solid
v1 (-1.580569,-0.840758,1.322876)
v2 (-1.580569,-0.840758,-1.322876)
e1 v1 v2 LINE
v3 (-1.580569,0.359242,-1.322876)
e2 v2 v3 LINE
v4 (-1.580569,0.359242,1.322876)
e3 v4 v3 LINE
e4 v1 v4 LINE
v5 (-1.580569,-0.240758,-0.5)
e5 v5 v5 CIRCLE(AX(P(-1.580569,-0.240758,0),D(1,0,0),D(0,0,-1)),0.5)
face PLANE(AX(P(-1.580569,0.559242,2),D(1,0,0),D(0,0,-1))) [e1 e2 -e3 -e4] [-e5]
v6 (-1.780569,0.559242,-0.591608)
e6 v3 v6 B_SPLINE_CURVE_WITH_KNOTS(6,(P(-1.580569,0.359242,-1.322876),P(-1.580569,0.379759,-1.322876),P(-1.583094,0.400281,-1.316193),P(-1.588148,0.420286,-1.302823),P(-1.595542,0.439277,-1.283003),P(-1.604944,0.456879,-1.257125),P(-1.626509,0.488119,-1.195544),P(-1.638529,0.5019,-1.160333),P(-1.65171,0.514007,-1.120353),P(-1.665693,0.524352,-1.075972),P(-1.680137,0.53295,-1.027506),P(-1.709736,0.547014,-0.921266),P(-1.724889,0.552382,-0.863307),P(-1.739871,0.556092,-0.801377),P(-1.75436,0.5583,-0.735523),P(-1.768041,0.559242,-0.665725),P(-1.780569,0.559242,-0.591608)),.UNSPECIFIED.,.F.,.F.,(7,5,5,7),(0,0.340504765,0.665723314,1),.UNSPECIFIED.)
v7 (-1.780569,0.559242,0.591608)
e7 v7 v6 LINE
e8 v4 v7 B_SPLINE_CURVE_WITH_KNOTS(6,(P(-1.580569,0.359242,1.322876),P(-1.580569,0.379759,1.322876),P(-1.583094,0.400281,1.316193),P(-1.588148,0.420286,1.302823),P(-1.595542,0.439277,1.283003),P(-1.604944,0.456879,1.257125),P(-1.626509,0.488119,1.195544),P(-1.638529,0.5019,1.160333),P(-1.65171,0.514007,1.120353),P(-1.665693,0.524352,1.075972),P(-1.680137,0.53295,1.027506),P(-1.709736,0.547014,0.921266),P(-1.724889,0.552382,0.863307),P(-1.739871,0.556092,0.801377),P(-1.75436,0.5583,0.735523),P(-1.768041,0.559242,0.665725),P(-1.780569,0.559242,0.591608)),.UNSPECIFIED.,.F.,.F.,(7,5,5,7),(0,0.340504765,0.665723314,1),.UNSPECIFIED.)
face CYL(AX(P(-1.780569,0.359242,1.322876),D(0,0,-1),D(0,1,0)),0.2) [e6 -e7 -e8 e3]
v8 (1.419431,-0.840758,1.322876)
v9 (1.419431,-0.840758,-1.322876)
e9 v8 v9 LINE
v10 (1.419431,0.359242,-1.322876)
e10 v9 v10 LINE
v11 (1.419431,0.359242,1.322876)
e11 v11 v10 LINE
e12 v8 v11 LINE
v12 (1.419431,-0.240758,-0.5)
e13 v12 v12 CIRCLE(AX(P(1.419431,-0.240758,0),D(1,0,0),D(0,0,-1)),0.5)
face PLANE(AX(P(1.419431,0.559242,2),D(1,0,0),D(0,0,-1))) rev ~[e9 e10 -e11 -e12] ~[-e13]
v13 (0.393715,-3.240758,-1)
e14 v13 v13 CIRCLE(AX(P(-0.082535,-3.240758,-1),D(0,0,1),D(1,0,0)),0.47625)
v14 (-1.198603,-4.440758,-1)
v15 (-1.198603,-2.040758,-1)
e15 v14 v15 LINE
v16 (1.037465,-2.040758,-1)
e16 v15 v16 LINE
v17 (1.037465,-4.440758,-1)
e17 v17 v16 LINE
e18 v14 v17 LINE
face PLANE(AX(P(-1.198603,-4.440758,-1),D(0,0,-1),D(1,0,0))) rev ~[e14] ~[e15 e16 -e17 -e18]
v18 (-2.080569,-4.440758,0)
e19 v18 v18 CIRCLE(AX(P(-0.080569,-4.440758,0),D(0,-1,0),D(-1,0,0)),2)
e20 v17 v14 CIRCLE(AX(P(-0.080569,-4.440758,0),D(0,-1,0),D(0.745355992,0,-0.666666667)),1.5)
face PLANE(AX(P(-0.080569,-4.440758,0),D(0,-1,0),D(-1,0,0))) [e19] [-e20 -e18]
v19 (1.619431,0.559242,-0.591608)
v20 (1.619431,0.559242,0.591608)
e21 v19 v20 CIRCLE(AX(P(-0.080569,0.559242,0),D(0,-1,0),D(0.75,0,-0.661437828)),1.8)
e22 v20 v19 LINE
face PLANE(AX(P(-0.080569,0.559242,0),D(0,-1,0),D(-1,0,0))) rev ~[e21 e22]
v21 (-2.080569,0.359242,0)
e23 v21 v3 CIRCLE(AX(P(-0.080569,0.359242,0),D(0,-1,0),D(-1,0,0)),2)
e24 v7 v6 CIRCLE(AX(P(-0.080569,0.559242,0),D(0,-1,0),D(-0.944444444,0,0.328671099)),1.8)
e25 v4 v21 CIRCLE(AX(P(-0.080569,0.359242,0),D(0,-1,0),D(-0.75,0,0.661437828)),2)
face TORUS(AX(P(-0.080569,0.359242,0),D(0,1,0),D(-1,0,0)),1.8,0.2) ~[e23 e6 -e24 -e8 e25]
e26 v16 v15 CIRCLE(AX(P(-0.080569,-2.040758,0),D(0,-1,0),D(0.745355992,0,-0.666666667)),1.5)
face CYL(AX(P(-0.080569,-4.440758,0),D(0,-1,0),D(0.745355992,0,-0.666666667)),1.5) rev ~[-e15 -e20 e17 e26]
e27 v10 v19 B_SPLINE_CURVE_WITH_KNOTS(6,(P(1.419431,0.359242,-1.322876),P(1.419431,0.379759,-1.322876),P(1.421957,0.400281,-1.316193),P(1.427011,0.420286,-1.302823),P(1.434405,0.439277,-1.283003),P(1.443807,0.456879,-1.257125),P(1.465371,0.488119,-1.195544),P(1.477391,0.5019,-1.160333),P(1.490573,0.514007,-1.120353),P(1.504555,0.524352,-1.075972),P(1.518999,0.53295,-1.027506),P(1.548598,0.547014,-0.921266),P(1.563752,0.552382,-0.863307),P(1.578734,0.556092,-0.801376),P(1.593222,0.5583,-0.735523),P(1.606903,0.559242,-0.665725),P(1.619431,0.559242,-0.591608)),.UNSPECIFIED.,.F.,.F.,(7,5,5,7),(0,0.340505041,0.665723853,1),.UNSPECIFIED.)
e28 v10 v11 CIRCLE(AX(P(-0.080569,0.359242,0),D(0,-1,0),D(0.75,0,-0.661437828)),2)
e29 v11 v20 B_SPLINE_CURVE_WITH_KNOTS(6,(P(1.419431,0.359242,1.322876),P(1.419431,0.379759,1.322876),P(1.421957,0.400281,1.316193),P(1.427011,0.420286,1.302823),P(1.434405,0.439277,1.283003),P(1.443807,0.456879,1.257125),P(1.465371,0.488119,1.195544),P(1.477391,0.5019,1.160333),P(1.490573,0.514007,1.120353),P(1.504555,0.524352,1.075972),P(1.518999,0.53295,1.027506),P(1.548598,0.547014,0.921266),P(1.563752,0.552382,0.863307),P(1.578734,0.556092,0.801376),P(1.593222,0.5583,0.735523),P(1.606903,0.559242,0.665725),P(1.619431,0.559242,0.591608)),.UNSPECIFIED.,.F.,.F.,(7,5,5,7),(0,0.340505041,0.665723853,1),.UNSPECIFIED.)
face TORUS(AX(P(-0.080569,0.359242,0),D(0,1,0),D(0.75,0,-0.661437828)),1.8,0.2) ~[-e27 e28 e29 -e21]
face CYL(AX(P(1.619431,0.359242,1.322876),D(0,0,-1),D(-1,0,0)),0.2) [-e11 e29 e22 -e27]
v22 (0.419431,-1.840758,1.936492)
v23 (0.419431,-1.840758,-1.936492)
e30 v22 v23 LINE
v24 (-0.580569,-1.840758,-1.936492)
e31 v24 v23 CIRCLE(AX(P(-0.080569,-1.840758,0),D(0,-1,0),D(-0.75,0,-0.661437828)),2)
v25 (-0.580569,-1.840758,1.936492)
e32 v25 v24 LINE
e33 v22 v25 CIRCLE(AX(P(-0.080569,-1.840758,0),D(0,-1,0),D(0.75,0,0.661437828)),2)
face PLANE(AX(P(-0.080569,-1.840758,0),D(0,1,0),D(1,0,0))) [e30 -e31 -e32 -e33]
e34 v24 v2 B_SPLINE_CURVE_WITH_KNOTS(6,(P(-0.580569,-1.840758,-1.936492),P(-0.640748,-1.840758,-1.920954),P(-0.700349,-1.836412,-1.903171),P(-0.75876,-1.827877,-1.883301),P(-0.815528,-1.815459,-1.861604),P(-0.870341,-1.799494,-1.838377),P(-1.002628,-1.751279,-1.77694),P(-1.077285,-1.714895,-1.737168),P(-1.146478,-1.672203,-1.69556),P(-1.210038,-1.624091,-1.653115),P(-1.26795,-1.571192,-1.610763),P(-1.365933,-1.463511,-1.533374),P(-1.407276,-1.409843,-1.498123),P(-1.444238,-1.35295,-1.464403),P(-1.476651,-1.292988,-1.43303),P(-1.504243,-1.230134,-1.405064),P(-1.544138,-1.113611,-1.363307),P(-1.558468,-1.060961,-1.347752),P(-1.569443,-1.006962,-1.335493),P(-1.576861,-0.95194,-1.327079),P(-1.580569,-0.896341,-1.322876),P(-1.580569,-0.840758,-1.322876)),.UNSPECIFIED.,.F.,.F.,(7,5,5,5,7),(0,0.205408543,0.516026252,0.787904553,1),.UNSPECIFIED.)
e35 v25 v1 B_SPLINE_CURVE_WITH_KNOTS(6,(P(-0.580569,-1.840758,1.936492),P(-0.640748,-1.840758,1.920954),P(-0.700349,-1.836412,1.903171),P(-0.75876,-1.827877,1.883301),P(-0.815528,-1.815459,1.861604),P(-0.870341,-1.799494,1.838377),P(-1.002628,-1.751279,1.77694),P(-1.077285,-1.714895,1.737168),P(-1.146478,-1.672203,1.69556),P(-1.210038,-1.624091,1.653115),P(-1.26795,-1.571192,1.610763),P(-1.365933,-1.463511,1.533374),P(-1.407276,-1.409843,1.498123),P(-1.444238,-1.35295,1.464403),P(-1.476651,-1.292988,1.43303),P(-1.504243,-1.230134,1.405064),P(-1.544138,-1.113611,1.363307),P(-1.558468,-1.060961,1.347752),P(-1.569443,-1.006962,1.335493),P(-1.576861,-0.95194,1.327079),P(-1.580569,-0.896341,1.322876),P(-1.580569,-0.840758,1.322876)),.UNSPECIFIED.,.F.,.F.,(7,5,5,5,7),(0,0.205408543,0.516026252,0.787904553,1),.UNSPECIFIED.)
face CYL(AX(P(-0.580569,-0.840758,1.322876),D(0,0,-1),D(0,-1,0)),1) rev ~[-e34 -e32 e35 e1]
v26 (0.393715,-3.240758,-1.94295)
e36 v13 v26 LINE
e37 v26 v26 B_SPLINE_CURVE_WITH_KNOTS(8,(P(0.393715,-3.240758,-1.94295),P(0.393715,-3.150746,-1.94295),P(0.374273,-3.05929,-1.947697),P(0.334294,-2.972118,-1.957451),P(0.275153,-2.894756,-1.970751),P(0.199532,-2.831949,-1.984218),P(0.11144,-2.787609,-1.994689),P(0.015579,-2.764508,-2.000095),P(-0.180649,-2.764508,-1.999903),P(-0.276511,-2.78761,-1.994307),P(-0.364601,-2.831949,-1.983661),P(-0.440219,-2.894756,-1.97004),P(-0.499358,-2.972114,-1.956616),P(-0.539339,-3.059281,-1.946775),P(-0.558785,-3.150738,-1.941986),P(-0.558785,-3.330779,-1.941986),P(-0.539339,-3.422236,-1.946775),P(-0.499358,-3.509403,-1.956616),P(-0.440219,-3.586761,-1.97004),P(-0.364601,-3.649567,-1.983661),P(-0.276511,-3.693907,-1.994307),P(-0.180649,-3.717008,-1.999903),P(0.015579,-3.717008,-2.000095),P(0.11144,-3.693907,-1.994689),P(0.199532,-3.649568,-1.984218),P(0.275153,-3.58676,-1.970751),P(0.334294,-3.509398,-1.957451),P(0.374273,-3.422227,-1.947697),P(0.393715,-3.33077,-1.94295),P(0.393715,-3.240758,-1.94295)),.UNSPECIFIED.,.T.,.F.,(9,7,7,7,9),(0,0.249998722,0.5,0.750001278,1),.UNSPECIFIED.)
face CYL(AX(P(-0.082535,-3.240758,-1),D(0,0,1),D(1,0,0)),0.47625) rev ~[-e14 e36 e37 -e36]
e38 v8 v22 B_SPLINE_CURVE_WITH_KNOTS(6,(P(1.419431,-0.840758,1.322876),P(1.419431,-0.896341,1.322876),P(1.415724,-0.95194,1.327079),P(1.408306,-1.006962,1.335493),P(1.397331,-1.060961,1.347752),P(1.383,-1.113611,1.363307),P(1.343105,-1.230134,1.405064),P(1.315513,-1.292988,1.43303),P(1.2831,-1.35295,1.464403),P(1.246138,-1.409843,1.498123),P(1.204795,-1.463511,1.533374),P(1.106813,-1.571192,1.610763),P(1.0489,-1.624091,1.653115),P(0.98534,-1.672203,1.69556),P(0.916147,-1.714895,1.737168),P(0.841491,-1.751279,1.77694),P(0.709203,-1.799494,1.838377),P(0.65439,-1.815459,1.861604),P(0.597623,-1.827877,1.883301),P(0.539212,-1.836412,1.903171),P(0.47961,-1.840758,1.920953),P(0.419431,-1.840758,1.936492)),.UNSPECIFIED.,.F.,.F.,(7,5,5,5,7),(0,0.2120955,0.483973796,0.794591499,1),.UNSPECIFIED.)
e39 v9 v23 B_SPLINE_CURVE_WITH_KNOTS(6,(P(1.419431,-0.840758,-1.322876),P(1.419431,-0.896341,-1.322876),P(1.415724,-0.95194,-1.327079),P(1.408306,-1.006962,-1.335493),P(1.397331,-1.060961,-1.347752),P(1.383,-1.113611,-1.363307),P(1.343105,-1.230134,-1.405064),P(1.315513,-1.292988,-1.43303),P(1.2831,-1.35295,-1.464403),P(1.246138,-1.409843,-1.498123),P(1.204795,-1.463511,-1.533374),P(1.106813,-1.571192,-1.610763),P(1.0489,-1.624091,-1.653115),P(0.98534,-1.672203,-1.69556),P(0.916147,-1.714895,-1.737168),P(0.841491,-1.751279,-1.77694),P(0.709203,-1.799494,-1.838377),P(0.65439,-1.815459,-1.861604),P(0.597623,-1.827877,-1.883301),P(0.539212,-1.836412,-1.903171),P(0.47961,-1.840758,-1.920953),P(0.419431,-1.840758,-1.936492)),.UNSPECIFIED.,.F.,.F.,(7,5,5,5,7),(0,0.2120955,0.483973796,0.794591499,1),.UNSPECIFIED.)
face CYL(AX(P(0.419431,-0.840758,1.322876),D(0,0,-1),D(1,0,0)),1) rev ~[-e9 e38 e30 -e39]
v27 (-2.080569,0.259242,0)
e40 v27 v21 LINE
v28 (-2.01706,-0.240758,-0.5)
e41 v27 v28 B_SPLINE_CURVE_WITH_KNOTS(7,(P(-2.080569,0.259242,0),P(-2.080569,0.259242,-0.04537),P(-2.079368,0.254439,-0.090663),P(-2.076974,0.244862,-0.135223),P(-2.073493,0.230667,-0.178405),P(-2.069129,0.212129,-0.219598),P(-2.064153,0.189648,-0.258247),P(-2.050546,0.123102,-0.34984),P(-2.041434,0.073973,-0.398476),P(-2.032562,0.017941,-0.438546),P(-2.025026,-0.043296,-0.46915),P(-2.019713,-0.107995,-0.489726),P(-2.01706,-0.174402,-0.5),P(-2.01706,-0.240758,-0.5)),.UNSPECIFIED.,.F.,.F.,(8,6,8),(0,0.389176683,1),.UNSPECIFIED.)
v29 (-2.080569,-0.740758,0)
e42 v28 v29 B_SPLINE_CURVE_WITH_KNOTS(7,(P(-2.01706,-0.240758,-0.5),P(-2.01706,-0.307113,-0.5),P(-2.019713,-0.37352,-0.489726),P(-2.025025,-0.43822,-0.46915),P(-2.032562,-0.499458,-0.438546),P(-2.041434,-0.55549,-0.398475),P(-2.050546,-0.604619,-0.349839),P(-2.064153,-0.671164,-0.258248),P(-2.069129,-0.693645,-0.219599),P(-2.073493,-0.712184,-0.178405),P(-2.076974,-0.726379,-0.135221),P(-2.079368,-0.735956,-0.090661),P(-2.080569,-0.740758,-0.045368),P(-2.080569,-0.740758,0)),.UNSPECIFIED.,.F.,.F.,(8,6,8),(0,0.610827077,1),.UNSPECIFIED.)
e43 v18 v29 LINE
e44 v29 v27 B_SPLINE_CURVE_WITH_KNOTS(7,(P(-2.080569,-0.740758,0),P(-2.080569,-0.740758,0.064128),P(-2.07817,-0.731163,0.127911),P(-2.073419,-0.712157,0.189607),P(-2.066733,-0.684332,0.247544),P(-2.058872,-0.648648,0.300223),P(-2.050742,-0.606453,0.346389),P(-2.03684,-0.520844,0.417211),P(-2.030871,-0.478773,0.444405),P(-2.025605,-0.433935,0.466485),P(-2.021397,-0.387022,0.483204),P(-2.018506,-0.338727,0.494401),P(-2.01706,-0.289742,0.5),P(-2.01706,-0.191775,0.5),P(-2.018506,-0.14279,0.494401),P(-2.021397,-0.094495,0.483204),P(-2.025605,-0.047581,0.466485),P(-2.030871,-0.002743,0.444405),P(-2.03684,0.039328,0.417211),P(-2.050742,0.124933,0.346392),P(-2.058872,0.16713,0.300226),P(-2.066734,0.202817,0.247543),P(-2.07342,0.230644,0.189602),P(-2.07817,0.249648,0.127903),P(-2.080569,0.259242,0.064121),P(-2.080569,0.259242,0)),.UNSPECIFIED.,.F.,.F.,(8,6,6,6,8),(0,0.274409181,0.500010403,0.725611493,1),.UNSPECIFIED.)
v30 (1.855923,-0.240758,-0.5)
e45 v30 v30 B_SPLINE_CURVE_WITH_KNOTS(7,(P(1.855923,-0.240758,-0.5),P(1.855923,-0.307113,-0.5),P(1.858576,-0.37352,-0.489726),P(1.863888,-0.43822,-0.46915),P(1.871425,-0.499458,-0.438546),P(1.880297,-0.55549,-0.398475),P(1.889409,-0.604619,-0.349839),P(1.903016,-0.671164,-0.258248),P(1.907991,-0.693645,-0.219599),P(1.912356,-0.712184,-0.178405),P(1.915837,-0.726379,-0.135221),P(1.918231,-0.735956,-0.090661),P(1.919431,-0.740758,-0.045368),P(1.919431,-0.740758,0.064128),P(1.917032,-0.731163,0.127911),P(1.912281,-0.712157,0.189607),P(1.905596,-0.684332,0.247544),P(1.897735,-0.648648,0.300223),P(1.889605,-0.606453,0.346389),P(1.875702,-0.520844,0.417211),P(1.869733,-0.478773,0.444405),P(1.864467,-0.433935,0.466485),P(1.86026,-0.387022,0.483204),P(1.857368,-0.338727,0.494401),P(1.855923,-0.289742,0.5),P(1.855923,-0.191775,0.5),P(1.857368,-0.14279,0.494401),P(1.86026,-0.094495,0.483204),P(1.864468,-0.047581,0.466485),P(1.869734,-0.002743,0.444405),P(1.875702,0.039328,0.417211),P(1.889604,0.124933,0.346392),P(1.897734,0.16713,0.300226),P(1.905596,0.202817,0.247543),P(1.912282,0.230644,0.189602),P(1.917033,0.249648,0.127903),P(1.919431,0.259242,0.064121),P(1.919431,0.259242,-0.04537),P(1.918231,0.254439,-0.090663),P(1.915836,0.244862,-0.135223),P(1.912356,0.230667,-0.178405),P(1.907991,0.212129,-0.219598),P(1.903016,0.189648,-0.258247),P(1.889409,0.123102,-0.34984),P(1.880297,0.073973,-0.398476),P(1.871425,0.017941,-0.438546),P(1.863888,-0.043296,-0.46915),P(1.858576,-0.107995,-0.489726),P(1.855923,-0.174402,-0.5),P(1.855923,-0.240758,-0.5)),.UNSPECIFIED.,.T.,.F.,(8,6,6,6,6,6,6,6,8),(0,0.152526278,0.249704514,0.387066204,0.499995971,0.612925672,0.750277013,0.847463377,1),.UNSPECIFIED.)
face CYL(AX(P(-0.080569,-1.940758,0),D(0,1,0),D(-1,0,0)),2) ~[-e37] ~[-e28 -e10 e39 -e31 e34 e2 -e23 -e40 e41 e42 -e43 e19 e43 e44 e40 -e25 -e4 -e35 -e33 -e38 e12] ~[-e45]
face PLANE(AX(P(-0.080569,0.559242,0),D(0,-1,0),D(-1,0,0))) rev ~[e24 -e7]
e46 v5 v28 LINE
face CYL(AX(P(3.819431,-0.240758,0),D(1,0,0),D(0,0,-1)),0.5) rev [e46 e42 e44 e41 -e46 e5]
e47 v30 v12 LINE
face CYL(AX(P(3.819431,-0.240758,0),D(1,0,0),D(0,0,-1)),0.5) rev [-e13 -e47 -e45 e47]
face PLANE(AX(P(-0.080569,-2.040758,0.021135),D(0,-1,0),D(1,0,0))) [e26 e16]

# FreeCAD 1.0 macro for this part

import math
import FreeCAD as App
import Part
import Sketcher

V = App.Vector


def edges_at(feature, points):
    """Names of the edges that pass closest to the given points."""
    edges = feature.Shape.Edges
    near = lambda p: min(range(len(edges)), key=lambda i: edges[i].distToShape(Part.Vertex(*p))[0])
    return sorted({f"Edge{near(p) + 1}" for p in points})

doc = App.newDocument("Part")
body = doc.addObject("PartDesign::Body", "Body")

# Sketch on XY plane
sketch1 = doc.addObject("Sketcher::SketchObject", "Sketch")
body.addObject(sketch1)
sketch1.AttachmentSupport = (doc.XY_Plane, [""])
sketch1.MapMode = "FlatFace"
sketch1.addGeometry(Part.LineSegment(V(-2.1, 0.6, 0), V(-2.1, -4.4, 0)), False)
sketch1.addGeometry(Part.LineSegment(V(-2.1, -4.4, 0), V(-0.1, -4.4, 0)), False)
sketch1.addGeometry(Part.LineSegment(V(-0.1, -4.4, 0), V(-0.1, 0.6, 0)), False)
sketch1.addGeometry(Part.LineSegment(V(-0.1, 0.6, 0), V(-2.1, 0.6, 0)), False)
sketch1.addGeometry(Part.LineSegment(V(-0.1, 0.6, 0), V(-0.1, -4.4, 0)), True)  # axis
sketch1.addConstraint(Sketcher.Constraint("Coincident", 0, 2, 1, 1))
sketch1.addConstraint(Sketcher.Constraint("Coincident", 1, 2, 2, 1))
sketch1.addConstraint(Sketcher.Constraint("Coincident", 2, 2, 3, 1))
sketch1.addConstraint(Sketcher.Constraint("Coincident", 3, 2, 0, 1))
sketch1.addConstraint(Sketcher.Constraint("Vertical", 0))
sketch1.addConstraint(Sketcher.Constraint("Horizontal", 1))
sketch1.addConstraint(Sketcher.Constraint("Vertical", 2))
sketch1.addConstraint(Sketcher.Constraint("Horizontal", 3))
sketch1.addConstraint(Sketcher.Constraint("Vertical", 4))
sketch1.addConstraint(Sketcher.Constraint("Coincident", 4, 1, 2, 2))
sketch1.addConstraint(Sketcher.Constraint("Horizontal", 0, 2, 4, 2))
sketch1.addConstraint(Sketcher.Constraint("DistanceX", 1, 1, 1, 2, 2.0))
sketch1.addConstraint(Sketcher.Constraint("DistanceY", 0, 2, 0, 1, 5.0))
sketch1.addConstraint(Sketcher.Constraint("DistanceX", 0, 2, -1, 1, 2.080569))
sketch1.addConstraint(Sketcher.Constraint("DistanceY", 0, 2, -1, 1, 4.440758))
revolution = doc.addObject("PartDesign::Revolution", "Revolution")
body.addObject(revolution)
revolution.Profile = sketch1
revolution.ReferenceAxis = (sketch1, ["Axis0"])
revolution.Angle = 360

# Sketch on XZ plane
sketch2 = doc.addObject("Sketcher::SketchObject", "Sketch001")
body.addObject(sketch2)
sketch2.AttachmentSupport = (doc.XZ_Plane, [""])
sketch2.MapMode = "FlatFace"
sketch2.AttachmentOffset = App.Placement(V(0, 0, -0.559242), App.Rotation())
sketch2.addGeometry(Part.LineSegment(V(-1.6, -2, 0), V(-1.6, 2, 0)), False)
sketch2.addGeometry(Part.LineSegment(V(-1.6, 2, 0), V(1.4, 2, 0)), False)
sketch2.addGeometry(Part.LineSegment(V(1.4, 2, 0), V(1.4, -2, 0)), False)
sketch2.addGeometry(Part.LineSegment(V(1.4, -2, 0), V(-1.6, -2, 0)), False)
sketch2.addConstraint(Sketcher.Constraint("Coincident", 0, 2, 1, 1))
sketch2.addConstraint(Sketcher.Constraint("Coincident", 1, 2, 2, 1))
sketch2.addConstraint(Sketcher.Constraint("Coincident", 2, 2, 3, 1))
sketch2.addConstraint(Sketcher.Constraint("Coincident", 3, 2, 0, 1))
sketch2.addConstraint(Sketcher.Constraint("Vertical", 0))
sketch2.addConstraint(Sketcher.Constraint("Horizontal", 1))
sketch2.addConstraint(Sketcher.Constraint("Vertical", 2))
sketch2.addConstraint(Sketcher.Constraint("Horizontal", 3))
sketch2.addConstraint(Sketcher.Constraint("DistanceX", 1, 1, 1, 2, 3.0))
sketch2.addConstraint(Sketcher.Constraint("DistanceY", 0, 1, 0, 2, 4.0))
sketch2.addConstraint(Sketcher.Constraint("DistanceY", -1, 1, 0, 2, 2.0))
sketch2.addConstraint(Sketcher.Constraint("DistanceX", 0, 2, -1, 1, 1.580569))
pocket1 = doc.addObject("PartDesign::Pocket", "Pocket")
body.addObject(pocket1)
pocket1.Profile = sketch2
pocket1.Length = 2.4
pocket1.Reversed = True

# Sketch on XZ plane
sketch3 = doc.addObject("Sketcher::SketchObject", "Sketch002")
body.addObject(sketch3)
sketch3.AttachmentSupport = (doc.XZ_Plane, [""])
sketch3.MapMode = "FlatFace"
sketch3.AttachmentOffset = App.Placement(V(0, 0, 4.440758), App.Rotation())
sketch3.addGeometry(Part.LineSegment(V(-1.2, -1, 0), V(1, -1, 0)), False)
sketch3.addGeometry(Part.ArcOfCircle(Part.Circle(V(-0.1, 0, 0), V(0, 0, 1), 1.5), math.radians(-42), math.radians(222)), False)
sketch3.addConstraint(Sketcher.Constraint("Coincident", 0, 1, 1, 2))
sketch3.addConstraint(Sketcher.Constraint("Coincident", 1, 1, 0, 2))
sketch3.addConstraint(Sketcher.Constraint("Horizontal", 0))
sketch3.addConstraint(Sketcher.Constraint("PointOnObject", 1, 3, -1))
sketch3.addConstraint(Sketcher.Constraint("Radius", 1, 1.5))
sketch3.addConstraint(Sketcher.Constraint("DistanceY", 0, 1, -1, 1, 1.0))
sketch3.addConstraint(Sketcher.Constraint("DistanceX", 1, 3, -1, 1, 0.080569))
pocket2 = doc.addObject("PartDesign::Pocket", "Pocket001")
body.addObject(pocket2)
pocket2.Profile = sketch3
pocket2.Length = 2.4
doc.recompute()

fillet = doc.addObject("PartDesign::Fillet", "Fillet")
body.addObject(fillet)
fillet.Base = (pocket2, edges_at(pocket2, [
    (1.919, 0.559, 0),
    (-1.951, 0.559, -0.707),
    (1.419, 0.559, 0),
    (-1.581, 0.559, 0),
]))
fillet.Radius = 0.2
doc.recompute()

fillet2 = doc.addObject("PartDesign::Fillet", "Fillet001")
body.addObject(fillet2)
fillet2.Base = (fillet, edges_at(fillet, [(-1.581, -1.841, 0), (1.419, -1.841, 0)]))
fillet2.Radius = 1

# Sketch on YZ plane
sketch4 = doc.addObject("Sketcher::SketchObject", "Sketch003")
body.addObject(sketch4)
sketch4.AttachmentSupport = (doc.YZ_Plane, [""])
sketch4.MapMode = "FlatFace"
sketch4.AttachmentOffset = App.Placement(V(0, 0, 1.419431), App.Rotation())
sketch4.addGeometry(Part.Circle(V(-0.2, 0, 0), V(0, 0, 1), 0.5), False)
sketch4.addConstraint(Sketcher.Constraint("PointOnObject", 0, 3, -1))
sketch4.addConstraint(Sketcher.Constraint("Diameter", 0, 1.0))
sketch4.addConstraint(Sketcher.Constraint("DistanceX", 0, 3, -1, 1, 0.240758))
pocket3 = doc.addObject("PartDesign::Pocket", "Pocket002")
body.addObject(pocket3)
pocket3.Profile = sketch4
pocket3.Type = "ThroughAll"
pocket3.Midplane = True

# Sketch on XY plane
sketch5 = doc.addObject("Sketcher::SketchObject", "Sketch004")
body.addObject(sketch5)
sketch5.AttachmentSupport = (doc.XY_Plane, [""])
sketch5.MapMode = "FlatFace"
sketch5.AttachmentOffset = App.Placement(V(0, 0, -1), App.Rotation())
sketch5.addGeometry(Part.Circle(V(-0.08, -3.24, 0), V(0, 0, 1), 0.48), False)
sketch5.addConstraint(Sketcher.Constraint("Diameter", 0, 0.9525))
sketch5.addConstraint(Sketcher.Constraint("DistanceY", 0, 3, -1, 1, 3.240758))
sketch5.addConstraint(Sketcher.Constraint("DistanceX", 0, 3, -1, 1, 0.082535))
pocket4 = doc.addObject("PartDesign::Pocket", "Pocket003")
body.addObject(pocket4)
pocket4.Profile = sketch5
pocket4.Length = 2.5

doc.recompute()
